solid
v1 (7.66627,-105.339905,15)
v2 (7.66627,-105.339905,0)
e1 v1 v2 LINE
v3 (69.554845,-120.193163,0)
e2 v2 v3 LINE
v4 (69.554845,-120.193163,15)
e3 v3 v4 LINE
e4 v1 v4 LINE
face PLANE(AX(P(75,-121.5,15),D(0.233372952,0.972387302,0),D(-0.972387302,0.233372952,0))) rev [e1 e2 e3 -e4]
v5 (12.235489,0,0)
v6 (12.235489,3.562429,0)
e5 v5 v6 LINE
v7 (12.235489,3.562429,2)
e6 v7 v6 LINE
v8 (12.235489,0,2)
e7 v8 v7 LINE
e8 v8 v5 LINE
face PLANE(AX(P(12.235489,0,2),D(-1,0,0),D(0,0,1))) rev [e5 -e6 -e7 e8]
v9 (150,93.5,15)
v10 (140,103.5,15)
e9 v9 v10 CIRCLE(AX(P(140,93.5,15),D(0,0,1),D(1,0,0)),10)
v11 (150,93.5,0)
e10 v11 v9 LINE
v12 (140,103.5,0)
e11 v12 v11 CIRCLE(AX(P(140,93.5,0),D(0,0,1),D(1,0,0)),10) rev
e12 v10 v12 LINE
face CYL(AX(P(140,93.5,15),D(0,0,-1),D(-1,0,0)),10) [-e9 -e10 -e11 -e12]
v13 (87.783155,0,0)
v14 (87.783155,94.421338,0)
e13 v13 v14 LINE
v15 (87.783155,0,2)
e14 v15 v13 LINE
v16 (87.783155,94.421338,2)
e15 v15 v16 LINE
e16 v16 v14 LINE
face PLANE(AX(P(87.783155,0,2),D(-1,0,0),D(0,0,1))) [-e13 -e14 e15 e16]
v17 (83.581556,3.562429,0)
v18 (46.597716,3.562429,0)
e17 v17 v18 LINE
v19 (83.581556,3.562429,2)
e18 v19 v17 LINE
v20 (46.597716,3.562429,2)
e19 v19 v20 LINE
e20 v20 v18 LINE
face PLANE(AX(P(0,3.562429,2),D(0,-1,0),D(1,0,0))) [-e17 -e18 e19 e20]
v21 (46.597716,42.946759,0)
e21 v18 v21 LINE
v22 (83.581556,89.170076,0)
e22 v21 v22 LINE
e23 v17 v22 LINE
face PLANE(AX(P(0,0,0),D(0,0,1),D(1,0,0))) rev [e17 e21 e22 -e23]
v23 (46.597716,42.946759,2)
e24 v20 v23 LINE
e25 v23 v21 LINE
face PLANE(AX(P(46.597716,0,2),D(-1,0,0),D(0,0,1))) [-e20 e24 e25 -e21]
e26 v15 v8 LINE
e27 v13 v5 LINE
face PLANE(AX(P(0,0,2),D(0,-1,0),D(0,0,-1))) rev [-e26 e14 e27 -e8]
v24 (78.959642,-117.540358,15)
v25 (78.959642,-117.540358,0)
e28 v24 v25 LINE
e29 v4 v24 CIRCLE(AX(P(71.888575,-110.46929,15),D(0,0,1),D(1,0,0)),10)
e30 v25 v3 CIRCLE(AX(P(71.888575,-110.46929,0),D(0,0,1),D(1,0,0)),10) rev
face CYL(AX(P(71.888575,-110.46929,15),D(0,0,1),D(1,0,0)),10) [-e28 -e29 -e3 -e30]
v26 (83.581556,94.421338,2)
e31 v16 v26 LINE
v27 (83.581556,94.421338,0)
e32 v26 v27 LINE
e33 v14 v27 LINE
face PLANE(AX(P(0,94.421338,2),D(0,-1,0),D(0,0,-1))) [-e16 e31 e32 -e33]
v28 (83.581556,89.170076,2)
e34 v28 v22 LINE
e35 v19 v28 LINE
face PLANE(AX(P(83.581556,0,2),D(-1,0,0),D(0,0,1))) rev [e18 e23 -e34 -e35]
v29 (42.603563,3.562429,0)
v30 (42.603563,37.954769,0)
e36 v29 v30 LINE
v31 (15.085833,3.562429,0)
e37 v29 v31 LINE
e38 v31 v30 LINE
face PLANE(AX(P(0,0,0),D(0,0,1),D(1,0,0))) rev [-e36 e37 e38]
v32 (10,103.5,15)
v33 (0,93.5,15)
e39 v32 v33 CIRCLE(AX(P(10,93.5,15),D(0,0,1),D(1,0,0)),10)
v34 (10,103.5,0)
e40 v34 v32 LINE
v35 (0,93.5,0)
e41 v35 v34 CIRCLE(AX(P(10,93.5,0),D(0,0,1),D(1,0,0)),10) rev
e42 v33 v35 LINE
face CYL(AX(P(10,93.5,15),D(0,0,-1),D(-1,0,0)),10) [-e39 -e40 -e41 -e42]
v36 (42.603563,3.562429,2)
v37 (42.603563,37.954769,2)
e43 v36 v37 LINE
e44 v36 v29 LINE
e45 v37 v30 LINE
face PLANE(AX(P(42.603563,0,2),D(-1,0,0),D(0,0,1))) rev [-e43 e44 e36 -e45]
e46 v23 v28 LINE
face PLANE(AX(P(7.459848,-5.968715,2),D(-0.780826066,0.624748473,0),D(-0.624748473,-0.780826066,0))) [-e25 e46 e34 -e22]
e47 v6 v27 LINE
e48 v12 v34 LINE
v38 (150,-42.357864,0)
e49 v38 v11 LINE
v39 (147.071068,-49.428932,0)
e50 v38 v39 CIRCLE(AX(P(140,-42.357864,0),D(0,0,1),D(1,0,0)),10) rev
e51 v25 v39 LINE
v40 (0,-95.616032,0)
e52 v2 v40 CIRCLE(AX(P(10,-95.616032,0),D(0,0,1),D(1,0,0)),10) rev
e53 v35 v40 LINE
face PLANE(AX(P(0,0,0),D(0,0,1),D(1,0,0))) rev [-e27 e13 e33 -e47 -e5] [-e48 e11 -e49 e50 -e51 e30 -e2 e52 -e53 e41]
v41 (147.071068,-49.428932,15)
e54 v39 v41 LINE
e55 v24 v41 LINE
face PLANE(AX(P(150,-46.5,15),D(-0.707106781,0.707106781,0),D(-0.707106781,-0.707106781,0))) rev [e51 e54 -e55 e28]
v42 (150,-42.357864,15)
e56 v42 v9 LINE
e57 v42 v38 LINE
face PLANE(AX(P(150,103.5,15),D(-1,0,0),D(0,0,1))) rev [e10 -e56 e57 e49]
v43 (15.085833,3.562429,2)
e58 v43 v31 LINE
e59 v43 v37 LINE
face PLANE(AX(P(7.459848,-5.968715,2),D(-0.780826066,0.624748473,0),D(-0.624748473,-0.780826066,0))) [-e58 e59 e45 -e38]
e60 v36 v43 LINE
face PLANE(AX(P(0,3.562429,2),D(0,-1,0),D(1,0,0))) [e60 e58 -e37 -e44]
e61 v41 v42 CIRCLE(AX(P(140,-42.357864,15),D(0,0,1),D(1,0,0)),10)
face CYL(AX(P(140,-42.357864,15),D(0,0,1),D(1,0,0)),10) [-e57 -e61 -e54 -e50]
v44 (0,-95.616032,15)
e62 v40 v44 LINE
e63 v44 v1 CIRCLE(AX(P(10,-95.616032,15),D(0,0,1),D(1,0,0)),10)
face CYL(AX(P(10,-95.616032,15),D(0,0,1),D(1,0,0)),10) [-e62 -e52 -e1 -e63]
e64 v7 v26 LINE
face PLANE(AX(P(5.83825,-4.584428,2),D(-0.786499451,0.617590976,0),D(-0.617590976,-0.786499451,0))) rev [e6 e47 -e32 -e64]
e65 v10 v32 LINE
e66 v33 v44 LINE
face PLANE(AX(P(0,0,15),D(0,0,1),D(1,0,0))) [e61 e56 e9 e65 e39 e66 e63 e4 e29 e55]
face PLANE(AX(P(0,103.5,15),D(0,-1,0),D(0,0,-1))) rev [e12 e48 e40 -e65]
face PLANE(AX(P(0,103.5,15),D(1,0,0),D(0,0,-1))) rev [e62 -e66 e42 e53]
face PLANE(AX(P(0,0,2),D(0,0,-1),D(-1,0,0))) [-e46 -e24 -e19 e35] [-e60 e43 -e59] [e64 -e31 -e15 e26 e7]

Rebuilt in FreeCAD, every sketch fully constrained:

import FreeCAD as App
import Part
import Sketcher
Q = App.Units.Quantity


def edges_at(feature, points):
    """Names of the edges that pass closest to the given points."""
    edges = feature.Shape.Edges
    near = lambda p: min(range(len(edges)), key=lambda i: edges[i].distToShape(Part.Vertex(*p))[0])
    return sorted({f"Edge{near(p) + 1}" for p in points})


def add_polygon(sketch, points):
    """Adds a closed chain of lines whose ends are joined by coincident constraints."""
    first, n = sketch.GeometryCount, len(points)
    for a, b in zip(points, points[1:] + points[:1]):
        sketch.addGeometry(Part.LineSegment(App.Vector(*a, 0), App.Vector(*b, 0)), False)
    for i in range(n):
        sketch.addConstraint(Sketcher.Constraint("Coincident", first + i, 2, first + (i + 1) % n, 1))

doc = App.newDocument("Part")
body = doc.addObject("PartDesign::Body", "Body")

# Sketch on XY plane
sketch1 = body.newObject("Sketcher::SketchObject", "Sketch")
sketch1.AttachmentSupport = (doc.getObject("XY_Plane"), [""])
sketch1.MapMode = "FlatFace"
add_polygon(sketch1, [(0, 103.5), (0, -103.5), (75, -121.5), (150, -46.5), (150, 103.5)])  # lines 0-4
sketch1.addConstraint(Sketcher.Constraint("Vertical", 0))
sketch1.addConstraint(Sketcher.Constraint("Vertical", 3))
sketch1.addConstraint(Sketcher.Constraint("Horizontal", 4))
sketch1.addConstraint(Sketcher.Constraint("Symmetric", 0, 2, 4, 2, -1, 1))
sketch1.addConstraint(Sketcher.Constraint("Equal", 4, 3))
sketch1.addConstraint(Sketcher.Constraint("DistanceX", 4, 2, 4, 1, 150.0))
sketch1.addConstraint(Sketcher.Constraint("DistanceY", 0, 2, 0, 1, 207.0))
sketch1.addConstraint(Sketcher.Constraint("Angle", 2, Q("45 deg")))
sketch1.addConstraint(Sketcher.Constraint("DistanceX", -1, 1, 1, 2, 75.0))
pad1 = body.newObject("PartDesign::Pad", "Pad")
pad1.Profile = sketch1
pad1.Length = 15
doc.recompute()

fillet = body.newObject("PartDesign::Fillet", "Fillet")
fillet.Base = (pad1, edges_at(pad1, [(0, -103.5, 7.5)]))
fillet.Radius = 10
doc.recompute()

fillet2 = body.newObject("PartDesign::Fillet", "Fillet001")
fillet2.Base = (fillet, edges_at(fillet, [(75, -121.5, 7.5)]))
fillet2.Radius = 10
doc.recompute()

fillet3 = body.newObject("PartDesign::Fillet", "Fillet002")
fillet3.Base = (fillet2, edges_at(fillet2, [(150, -46.5, 7.5)]))
fillet3.Radius = 10
doc.recompute()

fillet4 = body.newObject("PartDesign::Fillet", "Fillet003")
fillet4.Base = (fillet3, edges_at(fillet3, [(150, 103.5, 7.5)]))
fillet4.Radius = 10
doc.recompute()

fillet5 = body.newObject("PartDesign::Fillet", "Fillet004")
fillet5.Base = (fillet4, edges_at(fillet4, [(0, 103.5, 7.5)]))
fillet5.Radius = 10

# Sketch on XY plane
sketch2 = body.newObject("Sketcher::SketchObject", "Sketch001")
sketch2.AttachmentSupport = (doc.getObject("XY_Plane"), [""])
sketch2.MapMode = "FlatFace"
add_polygon(sketch2, [(12.235489, 0), (12.235489, 3.562429), (83.581556, 94.421338), (87.783155, 94.421338), (87.783155, 0)])  # lines 0-4
add_polygon(sketch2, [(46.597716, 42.946759), (46.597716, 3.562429), (83.581556, 3.562429), (83.581556, 89.170076)])  # lines 5-8
add_polygon(sketch2, [(42.603563, 3.562429), (42.603563, 37.954769), (15.085833, 3.562429)])  # lines 9-11
sketch2.addConstraint(Sketcher.Constraint("Vertical", 0))
sketch2.addConstraint(Sketcher.Constraint("Horizontal", 2))
sketch2.addConstraint(Sketcher.Constraint("Vertical", 3))
sketch2.addConstraint(Sketcher.Constraint("Horizontal", 4))
sketch2.addConstraint(Sketcher.Constraint("Vertical", 5))
sketch2.addConstraint(Sketcher.Constraint("Horizontal", 6))
sketch2.addConstraint(Sketcher.Constraint("Vertical", 7))
sketch2.addConstraint(Sketcher.Constraint("Vertical", 9))
sketch2.addConstraint(Sketcher.Constraint("Horizontal", 11))
sketch2.addConstraint(Sketcher.Constraint("PointOnObject", 3, 2, -1))
sketch2.addConstraint(Sketcher.Constraint("Parallel", 8, 10))
sketch2.addConstraint(Sketcher.Constraint("Horizontal", 0, 2, 5, 2))
sketch2.addConstraint(Sketcher.Constraint("Horizontal", 6, 2, 10, 2))
sketch2.addConstraint(Sketcher.Constraint("Vertical", 1, 2, 6, 2))
sketch2.addConstraint(Sketcher.Constraint("DistanceX", 2, 1, 2, 2, 4.201599))
sketch2.addConstraint(Sketcher.Constraint("DistanceX", 6, 1, 6, 2, 36.983841))
sketch2.addConstraint(Sketcher.Constraint("DistanceX", 11, 1, 11, 2, 27.517731))
sketch2.addConstraint(Sketcher.Constraint("DistanceY", 0, 1, 0, 2, 3.562429))
sketch2.addConstraint(Sketcher.Constraint("DistanceY", 3, 2, 3, 1, 94.421338))
sketch2.addConstraint(Sketcher.Constraint("DistanceY", 5, 2, 5, 1, 39.384329))
sketch2.addConstraint(Sketcher.Constraint("DistanceY", 9, 1, 9, 2, 34.392339))
sketch2.addConstraint(Sketcher.Constraint("Distance", 1, 115.523169))
sketch2.addConstraint(Sketcher.Constraint("DistanceX", -1, 1, 0, 2, 12.235489))
sketch2.addConstraint(Sketcher.Constraint("DistanceX", -1, 1, 9, 2, 42.603563))
pocket1 = body.newObject("PartDesign::Pocket", "Pocket")
pocket1.Profile = sketch2
pocket1.Length = 2
pocket1.Reversed = True

doc.recompute()
